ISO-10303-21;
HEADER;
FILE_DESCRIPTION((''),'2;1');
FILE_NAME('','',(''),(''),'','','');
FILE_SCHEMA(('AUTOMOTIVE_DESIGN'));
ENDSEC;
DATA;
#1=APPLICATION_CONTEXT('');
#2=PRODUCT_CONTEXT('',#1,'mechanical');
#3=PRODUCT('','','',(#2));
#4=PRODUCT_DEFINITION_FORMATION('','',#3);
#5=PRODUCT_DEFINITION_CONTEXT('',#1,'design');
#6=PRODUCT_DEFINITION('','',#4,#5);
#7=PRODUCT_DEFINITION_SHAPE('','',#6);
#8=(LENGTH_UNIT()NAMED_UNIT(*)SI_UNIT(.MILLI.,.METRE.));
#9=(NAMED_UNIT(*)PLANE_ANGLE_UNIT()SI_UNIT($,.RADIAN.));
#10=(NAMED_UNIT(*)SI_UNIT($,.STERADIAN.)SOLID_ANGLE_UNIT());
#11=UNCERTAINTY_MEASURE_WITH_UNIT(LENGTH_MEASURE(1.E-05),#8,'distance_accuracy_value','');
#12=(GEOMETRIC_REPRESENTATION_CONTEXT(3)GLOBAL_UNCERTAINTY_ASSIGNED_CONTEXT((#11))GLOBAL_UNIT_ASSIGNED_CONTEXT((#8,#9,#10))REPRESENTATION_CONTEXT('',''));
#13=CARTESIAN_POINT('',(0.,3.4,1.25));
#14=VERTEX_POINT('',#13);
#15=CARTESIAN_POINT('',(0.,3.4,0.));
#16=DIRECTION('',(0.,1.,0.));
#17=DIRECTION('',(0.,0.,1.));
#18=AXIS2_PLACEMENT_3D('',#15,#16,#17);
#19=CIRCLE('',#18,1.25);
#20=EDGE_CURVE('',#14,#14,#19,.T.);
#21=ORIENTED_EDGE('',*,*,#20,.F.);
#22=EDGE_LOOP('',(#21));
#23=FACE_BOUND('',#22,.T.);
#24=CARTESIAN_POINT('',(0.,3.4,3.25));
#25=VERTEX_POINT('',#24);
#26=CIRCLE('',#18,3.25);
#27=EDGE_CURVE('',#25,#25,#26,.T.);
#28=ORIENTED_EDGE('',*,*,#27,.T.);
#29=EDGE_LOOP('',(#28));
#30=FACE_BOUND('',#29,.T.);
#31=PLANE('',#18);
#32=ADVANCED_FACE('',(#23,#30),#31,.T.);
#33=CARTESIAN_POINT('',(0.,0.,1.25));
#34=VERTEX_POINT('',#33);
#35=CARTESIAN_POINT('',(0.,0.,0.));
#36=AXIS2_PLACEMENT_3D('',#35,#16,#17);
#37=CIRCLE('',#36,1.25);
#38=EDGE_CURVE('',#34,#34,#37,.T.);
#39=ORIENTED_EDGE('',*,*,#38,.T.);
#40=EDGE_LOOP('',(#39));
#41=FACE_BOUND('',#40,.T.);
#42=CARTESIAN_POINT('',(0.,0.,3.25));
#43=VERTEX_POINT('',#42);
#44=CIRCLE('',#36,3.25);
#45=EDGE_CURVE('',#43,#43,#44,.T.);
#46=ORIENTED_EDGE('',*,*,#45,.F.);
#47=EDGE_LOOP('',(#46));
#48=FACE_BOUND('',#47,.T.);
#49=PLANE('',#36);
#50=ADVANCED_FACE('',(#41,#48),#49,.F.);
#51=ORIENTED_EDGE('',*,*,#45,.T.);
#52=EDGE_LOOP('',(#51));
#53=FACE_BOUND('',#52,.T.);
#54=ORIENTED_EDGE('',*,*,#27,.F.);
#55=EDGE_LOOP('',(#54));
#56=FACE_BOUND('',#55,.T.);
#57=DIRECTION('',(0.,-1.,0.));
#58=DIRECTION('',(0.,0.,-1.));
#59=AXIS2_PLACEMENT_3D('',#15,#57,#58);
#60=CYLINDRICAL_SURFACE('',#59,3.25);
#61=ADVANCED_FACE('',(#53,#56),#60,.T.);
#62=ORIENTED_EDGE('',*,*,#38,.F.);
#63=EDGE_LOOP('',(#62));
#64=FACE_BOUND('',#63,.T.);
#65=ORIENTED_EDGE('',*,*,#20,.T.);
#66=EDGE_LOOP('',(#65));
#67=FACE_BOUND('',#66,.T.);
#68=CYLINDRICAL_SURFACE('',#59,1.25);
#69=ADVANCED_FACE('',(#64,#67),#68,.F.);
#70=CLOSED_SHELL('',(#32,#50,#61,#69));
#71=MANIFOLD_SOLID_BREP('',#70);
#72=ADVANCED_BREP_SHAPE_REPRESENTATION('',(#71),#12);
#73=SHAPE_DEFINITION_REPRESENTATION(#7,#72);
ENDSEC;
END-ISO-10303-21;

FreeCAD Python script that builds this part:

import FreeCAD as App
import Part
import Sketcher
from FreeCAD import Vector

doc = App.newDocument("Part")
body = doc.addObject("PartDesign::Body", "Body")

# Sketch on XZ plane
sketch1 = body.newObject("Sketcher::SketchObject", "Sketch")
sketch1.AttachmentSupport = (doc.getObject("XZ_Plane"), [""])
sketch1.MapMode = "FlatFace"
sketch1.addGeometry(Part.Circle(Vector(0, 0, 0), Vector(0, 0, 1), 3.2), False)
sketch1.addGeometry(Part.Circle(Vector(0, 0, 0), Vector(0, 0, 1), 1.2), False)
sketch1.addConstraint(Sketcher.Constraint("Coincident", 0, 3, -1, 1))
sketch1.addConstraint(Sketcher.Constraint("Coincident", 1, 3, -1, 1))
sketch1.addConstraint(Sketcher.Constraint("Diameter", 0, 6.5))
sketch1.addConstraint(Sketcher.Constraint("Diameter", 1, 2.5))
pad1 = body.newObject("PartDesign::Pad", "Pad")
pad1.Profile = sketch1
pad1.Length = 3.4
pad1.Reversed = True

doc.recompute()
